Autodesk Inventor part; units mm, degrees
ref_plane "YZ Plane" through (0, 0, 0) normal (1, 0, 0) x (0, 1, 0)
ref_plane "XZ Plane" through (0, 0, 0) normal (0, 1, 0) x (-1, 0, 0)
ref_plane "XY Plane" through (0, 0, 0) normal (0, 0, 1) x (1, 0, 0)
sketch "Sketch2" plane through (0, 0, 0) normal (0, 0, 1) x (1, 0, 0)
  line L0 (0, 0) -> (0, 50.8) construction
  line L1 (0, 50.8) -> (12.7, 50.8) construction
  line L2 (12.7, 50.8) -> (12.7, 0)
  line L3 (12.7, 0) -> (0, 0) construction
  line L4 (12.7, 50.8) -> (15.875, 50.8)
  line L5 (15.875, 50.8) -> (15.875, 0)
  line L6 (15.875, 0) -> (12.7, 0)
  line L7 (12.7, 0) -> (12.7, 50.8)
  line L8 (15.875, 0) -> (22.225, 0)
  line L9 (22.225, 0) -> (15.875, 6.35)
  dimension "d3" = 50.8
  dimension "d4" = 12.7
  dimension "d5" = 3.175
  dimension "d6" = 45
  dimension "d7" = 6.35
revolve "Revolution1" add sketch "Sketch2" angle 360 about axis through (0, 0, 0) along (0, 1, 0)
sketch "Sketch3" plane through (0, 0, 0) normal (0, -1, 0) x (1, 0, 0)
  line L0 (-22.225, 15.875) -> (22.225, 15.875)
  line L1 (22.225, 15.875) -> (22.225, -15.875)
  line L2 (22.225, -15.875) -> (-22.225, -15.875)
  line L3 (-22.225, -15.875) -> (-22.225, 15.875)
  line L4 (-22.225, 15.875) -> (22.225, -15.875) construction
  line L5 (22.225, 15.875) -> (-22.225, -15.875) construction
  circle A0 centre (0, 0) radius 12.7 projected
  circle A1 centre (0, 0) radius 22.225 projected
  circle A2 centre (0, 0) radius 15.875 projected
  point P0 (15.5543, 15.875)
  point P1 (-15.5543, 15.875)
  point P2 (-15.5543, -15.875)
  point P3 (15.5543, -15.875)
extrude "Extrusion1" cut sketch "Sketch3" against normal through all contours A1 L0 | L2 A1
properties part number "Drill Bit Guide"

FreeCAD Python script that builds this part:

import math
import FreeCAD as App
import Part
import Sketcher

V = App.Vector
Q = App.Units.Quantity

doc = App.newDocument("Part")
body = doc.addObject("PartDesign::Body", "Body")

sketch1 = body.newObject("Sketcher::SketchObject", "Sketch")
sketch1.AttachmentSupport = (doc.getObject("XY_Plane"), [""])
sketch1.MapMode = "FlatFace"
sketch1.addGeometry([
    Part.LineSegment(V(15.9, 50.8, 0), V(12.7, 50.8, 0)),
    Part.LineSegment(V(12.7, 50.8, 0), V(12.7, 0, 0)),
    Part.LineSegment(V(12.7, 0, 0), V(22.2, 0, 0)),
    Part.LineSegment(V(22.2, 0, 0), V(15.9, 6.3, 0)),
    Part.LineSegment(V(15.9, 6.3, 0), V(15.9, 50.8, 0)),
], False)
sketch1.addConstraint([
    Sketcher.Constraint("Coincident", 0, 2, 1, 1),
    Sketcher.Constraint("Coincident", 1, 2, 2, 1),
    Sketcher.Constraint("Coincident", 2, 2, 3, 1),
    Sketcher.Constraint("Coincident", 3, 2, 4, 1),
    Sketcher.Constraint("Coincident", 4, 2, 0, 1),
    Sketcher.Constraint("Horizontal", 0),
    Sketcher.Constraint("Vertical", 1),
    Sketcher.Constraint("Horizontal", 2),
    Sketcher.Constraint("Vertical", 4),
    Sketcher.Constraint("PointOnObject", 1, 2, -1),
    Sketcher.Constraint("DistanceY", 1, 2, 1, 1, Q("2 in")),
    Sketcher.Constraint("DistanceX", -1, 1, 0, 2, Q("0.5 in")),
    Sketcher.Constraint("DistanceX", 0, 2, 0, 1, Q("0.125 in")),
    Sketcher.Constraint("DistanceY", -1, 1, 3, 2, Q("0.25 in")),
    Sketcher.Constraint("DistanceX", 3, 2, 2, 2, Q("0.25 in")),
])
revolution = body.newObject("PartDesign::Revolution", "Revolution")
revolution.Profile = sketch1
revolution.ReferenceAxis = (sketch1, ["V_Axis"])
revolution.Angle = 360

sketch2 = body.newObject("Sketcher::SketchObject", "Sketch001")
sketch2.AttachmentSupport = (doc.getObject("XZ_Plane"), [""])
sketch2.MapMode = "FlatFace"
sketch2.addGeometry([
    Part.ArcOfCircle(Part.Circle(V(0, 0, 0), V(0, 0, 1), 22), math.radians(46), math.radians(134)),
    Part.LineSegment(V(-16, 16, 0), V(16, 16, 0)),
    Part.LineSegment(V(16, -16, 0), V(-16, -16, 0)),
    Part.ArcOfCircle(Part.Circle(V(0, 0, 0), V(0, 0, 1), 22), math.radians(-134), math.radians(-46)),
], False)
sketch2.addConstraint([
    Sketcher.Constraint("Coincident", 0, 1, 1, 2),
    Sketcher.Constraint("Coincident", 1, 1, 0, 2),
    Sketcher.Constraint("Coincident", 2, 1, 3, 2),
    Sketcher.Constraint("Coincident", 3, 1, 2, 2),
    Sketcher.Constraint("Horizontal", 1),
    Sketcher.Constraint("Horizontal", 2),
    Sketcher.Constraint("Coincident", 0, 3, -1, 1),
    Sketcher.Constraint("Coincident", 3, 3, -1, 1),
    Sketcher.Constraint("Equal", 0, 3),
    Sketcher.Constraint("Vertical", 0, 1, 2, 1),
    Sketcher.Constraint("Radius", 0, Q("0.875 in")),
    Sketcher.Constraint("DistanceY", 2, 1, 0, 1, Q("1.25 in")),
])
pocket1 = body.newObject("PartDesign::Pocket", "Pocket")
pocket1.Profile = sketch2
pocket1.Type = "ThroughAll"

doc.recompute()
